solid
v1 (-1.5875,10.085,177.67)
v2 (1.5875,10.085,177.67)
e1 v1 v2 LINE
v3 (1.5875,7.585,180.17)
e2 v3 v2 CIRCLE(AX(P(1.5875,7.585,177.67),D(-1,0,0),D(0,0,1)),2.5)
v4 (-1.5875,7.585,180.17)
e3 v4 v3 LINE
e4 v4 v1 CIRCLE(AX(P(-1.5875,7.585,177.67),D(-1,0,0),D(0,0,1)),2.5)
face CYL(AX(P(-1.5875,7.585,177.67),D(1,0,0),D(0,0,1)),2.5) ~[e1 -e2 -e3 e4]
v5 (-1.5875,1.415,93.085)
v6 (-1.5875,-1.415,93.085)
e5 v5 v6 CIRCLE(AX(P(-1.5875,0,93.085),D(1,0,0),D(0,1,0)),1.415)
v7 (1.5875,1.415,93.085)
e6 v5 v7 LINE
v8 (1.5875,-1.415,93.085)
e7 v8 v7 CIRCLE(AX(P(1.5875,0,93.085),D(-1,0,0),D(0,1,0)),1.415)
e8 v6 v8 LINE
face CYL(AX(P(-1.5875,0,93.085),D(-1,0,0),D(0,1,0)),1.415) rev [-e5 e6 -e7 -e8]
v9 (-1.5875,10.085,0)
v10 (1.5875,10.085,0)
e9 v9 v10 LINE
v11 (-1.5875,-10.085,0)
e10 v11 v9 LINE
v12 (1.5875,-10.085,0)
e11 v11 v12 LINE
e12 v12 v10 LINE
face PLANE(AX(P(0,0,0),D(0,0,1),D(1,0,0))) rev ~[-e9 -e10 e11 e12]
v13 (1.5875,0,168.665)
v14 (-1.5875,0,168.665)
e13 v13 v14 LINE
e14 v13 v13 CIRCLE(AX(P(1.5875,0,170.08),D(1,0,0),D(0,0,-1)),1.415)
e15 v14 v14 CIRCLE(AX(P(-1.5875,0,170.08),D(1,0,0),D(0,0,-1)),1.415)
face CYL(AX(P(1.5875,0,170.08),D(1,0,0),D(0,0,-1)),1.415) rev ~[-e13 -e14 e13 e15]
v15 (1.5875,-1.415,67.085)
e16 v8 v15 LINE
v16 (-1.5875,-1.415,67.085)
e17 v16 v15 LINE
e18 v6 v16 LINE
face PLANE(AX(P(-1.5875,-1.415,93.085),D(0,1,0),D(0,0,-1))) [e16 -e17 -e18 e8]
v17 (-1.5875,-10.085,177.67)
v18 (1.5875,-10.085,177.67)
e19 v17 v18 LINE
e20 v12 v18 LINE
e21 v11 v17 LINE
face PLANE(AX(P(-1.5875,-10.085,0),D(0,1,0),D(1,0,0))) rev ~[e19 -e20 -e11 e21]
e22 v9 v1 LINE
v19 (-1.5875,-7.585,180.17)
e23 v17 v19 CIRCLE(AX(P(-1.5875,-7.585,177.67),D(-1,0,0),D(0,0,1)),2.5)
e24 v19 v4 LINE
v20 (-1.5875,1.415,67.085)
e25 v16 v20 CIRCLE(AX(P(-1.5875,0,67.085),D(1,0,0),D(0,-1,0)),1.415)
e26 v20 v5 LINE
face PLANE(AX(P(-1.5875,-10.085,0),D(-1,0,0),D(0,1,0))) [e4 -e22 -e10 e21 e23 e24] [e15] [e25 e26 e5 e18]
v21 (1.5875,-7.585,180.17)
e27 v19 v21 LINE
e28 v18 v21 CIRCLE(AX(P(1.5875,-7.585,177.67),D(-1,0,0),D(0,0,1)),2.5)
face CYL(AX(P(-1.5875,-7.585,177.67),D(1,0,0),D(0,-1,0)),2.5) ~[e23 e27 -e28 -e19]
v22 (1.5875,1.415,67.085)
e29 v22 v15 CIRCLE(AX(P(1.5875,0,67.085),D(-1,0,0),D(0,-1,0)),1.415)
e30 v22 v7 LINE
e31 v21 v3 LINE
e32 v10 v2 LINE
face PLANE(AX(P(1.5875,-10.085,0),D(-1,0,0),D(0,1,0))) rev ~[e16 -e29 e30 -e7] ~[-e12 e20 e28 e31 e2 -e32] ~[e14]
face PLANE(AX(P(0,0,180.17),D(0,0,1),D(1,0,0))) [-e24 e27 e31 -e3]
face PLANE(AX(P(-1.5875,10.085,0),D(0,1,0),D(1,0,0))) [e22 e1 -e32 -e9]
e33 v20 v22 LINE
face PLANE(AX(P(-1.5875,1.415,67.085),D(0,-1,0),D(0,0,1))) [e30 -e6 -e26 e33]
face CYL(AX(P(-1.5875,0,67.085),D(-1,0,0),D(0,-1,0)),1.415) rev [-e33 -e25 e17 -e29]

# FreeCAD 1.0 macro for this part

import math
import FreeCAD as App
import Part
import Sketcher

V = App.Vector


def edges_at(feature, points):
    """Names of the edges that pass closest to the given points."""
    edges = feature.Shape.Edges
    near = lambda p: min(range(len(edges)), key=lambda i: edges[i].distToShape(Part.Vertex(*p))[0])
    return sorted({f"Edge{near(p) + 1}" for p in points})


def add_polygon(sketch, points):
    """Adds a closed chain of lines whose ends are joined by coincident constraints."""
    first, n = sketch.GeometryCount, len(points)
    for a, b in zip(points, points[1:] + points[:1]):
        sketch.addGeometry(Part.LineSegment(App.Vector(*a, 0), App.Vector(*b, 0)), False)
    for i in range(n):
        sketch.addConstraint(Sketcher.Constraint("Coincident", first + i, 2, first + (i + 1) % n, 1))

doc = App.newDocument("Part")
body = doc.addObject("PartDesign::Body", "Body")

# Sketch on XY plane
sketch1 = body.newObject("Sketcher::SketchObject", "Sketch")
sketch1.AttachmentSupport = (doc.getObject("XY_Plane"), [""])
sketch1.MapMode = "FlatFace"
add_polygon(sketch1, [(-1.5875, 10.085), (-1.5875, -10.085), (1.5875, -10.085), (1.5875, 10.085)])  # lines 0-3
sketch1.addConstraint(Sketcher.Constraint("Vertical", 0))
sketch1.addConstraint(Sketcher.Constraint("Horizontal", 1))
sketch1.addConstraint(Sketcher.Constraint("Vertical", 2))
sketch1.addConstraint(Sketcher.Constraint("Horizontal", 3))
sketch1.addConstraint(Sketcher.Constraint("Symmetric", 0, 2, 2, 2, -1, 1))
sketch1.addConstraint(Sketcher.Constraint("DistanceY", 0, 2, 0, 1, 20.17))
sketch1.addConstraint(Sketcher.Constraint("DistanceX", 1, 1, 1, 2, 3.175))
pad1 = body.newObject("PartDesign::Pad", "Pad")
pad1.Profile = sketch1
pad1.Length = 180.17

# Sketch on YZ plane
sketch2 = body.newObject("Sketcher::SketchObject", "Sketch001")
sketch2.AttachmentSupport = (doc.getObject("YZ_Plane"), [""])
sketch2.MapMode = "FlatFace"
sketch2.AttachmentOffset = App.Placement(V(0, 0, 1.5875), App.Rotation())
sketch2.addGeometry(Part.Circle(V(0, 170.08, 0), V(0, 0, 1), 1.415), False)
sketch2.addConstraint(Sketcher.Constraint("PointOnObject", 0, 3, -2))
sketch2.addConstraint(Sketcher.Constraint("Diameter", 0, 2.83))
sketch2.addConstraint(Sketcher.Constraint("DistanceY", -1, 1, 0, 3, 170.08))
pocket1 = body.newObject("PartDesign::Pocket", "Pocket")
pocket1.Profile = sketch2
pocket1.Type = "ThroughAll"
doc.recompute()

fillet = body.newObject("PartDesign::Fillet", "Fillet")
fillet.Base = (pocket1, edges_at(pocket1, [(0, -10.085, 180.17), (0, 10.085, 180.17)]))
fillet.Radius = 2.5

# Sketch on YZ plane
sketch3 = body.newObject("Sketcher::SketchObject", "Sketch002")
sketch3.AttachmentSupport = (doc.getObject("YZ_Plane"), [""])
sketch3.MapMode = "FlatFace"
sketch3.AttachmentOffset = App.Placement(V(0, 0, -1.5875), App.Rotation())
sketch3.addGeometry(Part.LineSegment(V(1.415, 93.085, 0), V(1.415, 67.085, 0)), False)
sketch3.addGeometry(Part.ArcOfCircle(Part.Circle(V(0, 67.085, 0), V(0, 0, 1), 1.415), math.radians(180), math.radians(360)), False)
sketch3.addGeometry(Part.LineSegment(V(-1.415, 67.085, 0), V(-1.415, 93.085, 0)), False)
sketch3.addGeometry(Part.ArcOfCircle(Part.Circle(V(0, 93.085, 0), V(0, 0, 1), 1.415), math.radians(0), math.radians(180)), False)
sketch3.addConstraint(Sketcher.Constraint("Tangent", 0, 2, 1, 2))
sketch3.addConstraint(Sketcher.Constraint("Tangent", 1, 1, 2, 1))
sketch3.addConstraint(Sketcher.Constraint("Tangent", 2, 2, 3, 2))
sketch3.addConstraint(Sketcher.Constraint("Tangent", 3, 1, 0, 1))
sketch3.addConstraint(Sketcher.Constraint("Vertical", 0))
sketch3.addConstraint(Sketcher.Constraint("Vertical", 2))
sketch3.addConstraint(Sketcher.Constraint("PointOnObject", 1, 3, -2))
sketch3.addConstraint(Sketcher.Constraint("DistanceY", 0, 2, 0, 1, 26.0))
sketch3.addConstraint(Sketcher.Constraint("Radius", 1, 1.415))
sketch3.addConstraint(Sketcher.Constraint("DistanceY", -1, 1, 1, 3, 67.085))
pocket2 = body.newObject("PartDesign::Pocket", "Pocket001")
pocket2.Profile = sketch3
pocket2.Length = 10
pocket2.Reversed = True

doc.recompute()
